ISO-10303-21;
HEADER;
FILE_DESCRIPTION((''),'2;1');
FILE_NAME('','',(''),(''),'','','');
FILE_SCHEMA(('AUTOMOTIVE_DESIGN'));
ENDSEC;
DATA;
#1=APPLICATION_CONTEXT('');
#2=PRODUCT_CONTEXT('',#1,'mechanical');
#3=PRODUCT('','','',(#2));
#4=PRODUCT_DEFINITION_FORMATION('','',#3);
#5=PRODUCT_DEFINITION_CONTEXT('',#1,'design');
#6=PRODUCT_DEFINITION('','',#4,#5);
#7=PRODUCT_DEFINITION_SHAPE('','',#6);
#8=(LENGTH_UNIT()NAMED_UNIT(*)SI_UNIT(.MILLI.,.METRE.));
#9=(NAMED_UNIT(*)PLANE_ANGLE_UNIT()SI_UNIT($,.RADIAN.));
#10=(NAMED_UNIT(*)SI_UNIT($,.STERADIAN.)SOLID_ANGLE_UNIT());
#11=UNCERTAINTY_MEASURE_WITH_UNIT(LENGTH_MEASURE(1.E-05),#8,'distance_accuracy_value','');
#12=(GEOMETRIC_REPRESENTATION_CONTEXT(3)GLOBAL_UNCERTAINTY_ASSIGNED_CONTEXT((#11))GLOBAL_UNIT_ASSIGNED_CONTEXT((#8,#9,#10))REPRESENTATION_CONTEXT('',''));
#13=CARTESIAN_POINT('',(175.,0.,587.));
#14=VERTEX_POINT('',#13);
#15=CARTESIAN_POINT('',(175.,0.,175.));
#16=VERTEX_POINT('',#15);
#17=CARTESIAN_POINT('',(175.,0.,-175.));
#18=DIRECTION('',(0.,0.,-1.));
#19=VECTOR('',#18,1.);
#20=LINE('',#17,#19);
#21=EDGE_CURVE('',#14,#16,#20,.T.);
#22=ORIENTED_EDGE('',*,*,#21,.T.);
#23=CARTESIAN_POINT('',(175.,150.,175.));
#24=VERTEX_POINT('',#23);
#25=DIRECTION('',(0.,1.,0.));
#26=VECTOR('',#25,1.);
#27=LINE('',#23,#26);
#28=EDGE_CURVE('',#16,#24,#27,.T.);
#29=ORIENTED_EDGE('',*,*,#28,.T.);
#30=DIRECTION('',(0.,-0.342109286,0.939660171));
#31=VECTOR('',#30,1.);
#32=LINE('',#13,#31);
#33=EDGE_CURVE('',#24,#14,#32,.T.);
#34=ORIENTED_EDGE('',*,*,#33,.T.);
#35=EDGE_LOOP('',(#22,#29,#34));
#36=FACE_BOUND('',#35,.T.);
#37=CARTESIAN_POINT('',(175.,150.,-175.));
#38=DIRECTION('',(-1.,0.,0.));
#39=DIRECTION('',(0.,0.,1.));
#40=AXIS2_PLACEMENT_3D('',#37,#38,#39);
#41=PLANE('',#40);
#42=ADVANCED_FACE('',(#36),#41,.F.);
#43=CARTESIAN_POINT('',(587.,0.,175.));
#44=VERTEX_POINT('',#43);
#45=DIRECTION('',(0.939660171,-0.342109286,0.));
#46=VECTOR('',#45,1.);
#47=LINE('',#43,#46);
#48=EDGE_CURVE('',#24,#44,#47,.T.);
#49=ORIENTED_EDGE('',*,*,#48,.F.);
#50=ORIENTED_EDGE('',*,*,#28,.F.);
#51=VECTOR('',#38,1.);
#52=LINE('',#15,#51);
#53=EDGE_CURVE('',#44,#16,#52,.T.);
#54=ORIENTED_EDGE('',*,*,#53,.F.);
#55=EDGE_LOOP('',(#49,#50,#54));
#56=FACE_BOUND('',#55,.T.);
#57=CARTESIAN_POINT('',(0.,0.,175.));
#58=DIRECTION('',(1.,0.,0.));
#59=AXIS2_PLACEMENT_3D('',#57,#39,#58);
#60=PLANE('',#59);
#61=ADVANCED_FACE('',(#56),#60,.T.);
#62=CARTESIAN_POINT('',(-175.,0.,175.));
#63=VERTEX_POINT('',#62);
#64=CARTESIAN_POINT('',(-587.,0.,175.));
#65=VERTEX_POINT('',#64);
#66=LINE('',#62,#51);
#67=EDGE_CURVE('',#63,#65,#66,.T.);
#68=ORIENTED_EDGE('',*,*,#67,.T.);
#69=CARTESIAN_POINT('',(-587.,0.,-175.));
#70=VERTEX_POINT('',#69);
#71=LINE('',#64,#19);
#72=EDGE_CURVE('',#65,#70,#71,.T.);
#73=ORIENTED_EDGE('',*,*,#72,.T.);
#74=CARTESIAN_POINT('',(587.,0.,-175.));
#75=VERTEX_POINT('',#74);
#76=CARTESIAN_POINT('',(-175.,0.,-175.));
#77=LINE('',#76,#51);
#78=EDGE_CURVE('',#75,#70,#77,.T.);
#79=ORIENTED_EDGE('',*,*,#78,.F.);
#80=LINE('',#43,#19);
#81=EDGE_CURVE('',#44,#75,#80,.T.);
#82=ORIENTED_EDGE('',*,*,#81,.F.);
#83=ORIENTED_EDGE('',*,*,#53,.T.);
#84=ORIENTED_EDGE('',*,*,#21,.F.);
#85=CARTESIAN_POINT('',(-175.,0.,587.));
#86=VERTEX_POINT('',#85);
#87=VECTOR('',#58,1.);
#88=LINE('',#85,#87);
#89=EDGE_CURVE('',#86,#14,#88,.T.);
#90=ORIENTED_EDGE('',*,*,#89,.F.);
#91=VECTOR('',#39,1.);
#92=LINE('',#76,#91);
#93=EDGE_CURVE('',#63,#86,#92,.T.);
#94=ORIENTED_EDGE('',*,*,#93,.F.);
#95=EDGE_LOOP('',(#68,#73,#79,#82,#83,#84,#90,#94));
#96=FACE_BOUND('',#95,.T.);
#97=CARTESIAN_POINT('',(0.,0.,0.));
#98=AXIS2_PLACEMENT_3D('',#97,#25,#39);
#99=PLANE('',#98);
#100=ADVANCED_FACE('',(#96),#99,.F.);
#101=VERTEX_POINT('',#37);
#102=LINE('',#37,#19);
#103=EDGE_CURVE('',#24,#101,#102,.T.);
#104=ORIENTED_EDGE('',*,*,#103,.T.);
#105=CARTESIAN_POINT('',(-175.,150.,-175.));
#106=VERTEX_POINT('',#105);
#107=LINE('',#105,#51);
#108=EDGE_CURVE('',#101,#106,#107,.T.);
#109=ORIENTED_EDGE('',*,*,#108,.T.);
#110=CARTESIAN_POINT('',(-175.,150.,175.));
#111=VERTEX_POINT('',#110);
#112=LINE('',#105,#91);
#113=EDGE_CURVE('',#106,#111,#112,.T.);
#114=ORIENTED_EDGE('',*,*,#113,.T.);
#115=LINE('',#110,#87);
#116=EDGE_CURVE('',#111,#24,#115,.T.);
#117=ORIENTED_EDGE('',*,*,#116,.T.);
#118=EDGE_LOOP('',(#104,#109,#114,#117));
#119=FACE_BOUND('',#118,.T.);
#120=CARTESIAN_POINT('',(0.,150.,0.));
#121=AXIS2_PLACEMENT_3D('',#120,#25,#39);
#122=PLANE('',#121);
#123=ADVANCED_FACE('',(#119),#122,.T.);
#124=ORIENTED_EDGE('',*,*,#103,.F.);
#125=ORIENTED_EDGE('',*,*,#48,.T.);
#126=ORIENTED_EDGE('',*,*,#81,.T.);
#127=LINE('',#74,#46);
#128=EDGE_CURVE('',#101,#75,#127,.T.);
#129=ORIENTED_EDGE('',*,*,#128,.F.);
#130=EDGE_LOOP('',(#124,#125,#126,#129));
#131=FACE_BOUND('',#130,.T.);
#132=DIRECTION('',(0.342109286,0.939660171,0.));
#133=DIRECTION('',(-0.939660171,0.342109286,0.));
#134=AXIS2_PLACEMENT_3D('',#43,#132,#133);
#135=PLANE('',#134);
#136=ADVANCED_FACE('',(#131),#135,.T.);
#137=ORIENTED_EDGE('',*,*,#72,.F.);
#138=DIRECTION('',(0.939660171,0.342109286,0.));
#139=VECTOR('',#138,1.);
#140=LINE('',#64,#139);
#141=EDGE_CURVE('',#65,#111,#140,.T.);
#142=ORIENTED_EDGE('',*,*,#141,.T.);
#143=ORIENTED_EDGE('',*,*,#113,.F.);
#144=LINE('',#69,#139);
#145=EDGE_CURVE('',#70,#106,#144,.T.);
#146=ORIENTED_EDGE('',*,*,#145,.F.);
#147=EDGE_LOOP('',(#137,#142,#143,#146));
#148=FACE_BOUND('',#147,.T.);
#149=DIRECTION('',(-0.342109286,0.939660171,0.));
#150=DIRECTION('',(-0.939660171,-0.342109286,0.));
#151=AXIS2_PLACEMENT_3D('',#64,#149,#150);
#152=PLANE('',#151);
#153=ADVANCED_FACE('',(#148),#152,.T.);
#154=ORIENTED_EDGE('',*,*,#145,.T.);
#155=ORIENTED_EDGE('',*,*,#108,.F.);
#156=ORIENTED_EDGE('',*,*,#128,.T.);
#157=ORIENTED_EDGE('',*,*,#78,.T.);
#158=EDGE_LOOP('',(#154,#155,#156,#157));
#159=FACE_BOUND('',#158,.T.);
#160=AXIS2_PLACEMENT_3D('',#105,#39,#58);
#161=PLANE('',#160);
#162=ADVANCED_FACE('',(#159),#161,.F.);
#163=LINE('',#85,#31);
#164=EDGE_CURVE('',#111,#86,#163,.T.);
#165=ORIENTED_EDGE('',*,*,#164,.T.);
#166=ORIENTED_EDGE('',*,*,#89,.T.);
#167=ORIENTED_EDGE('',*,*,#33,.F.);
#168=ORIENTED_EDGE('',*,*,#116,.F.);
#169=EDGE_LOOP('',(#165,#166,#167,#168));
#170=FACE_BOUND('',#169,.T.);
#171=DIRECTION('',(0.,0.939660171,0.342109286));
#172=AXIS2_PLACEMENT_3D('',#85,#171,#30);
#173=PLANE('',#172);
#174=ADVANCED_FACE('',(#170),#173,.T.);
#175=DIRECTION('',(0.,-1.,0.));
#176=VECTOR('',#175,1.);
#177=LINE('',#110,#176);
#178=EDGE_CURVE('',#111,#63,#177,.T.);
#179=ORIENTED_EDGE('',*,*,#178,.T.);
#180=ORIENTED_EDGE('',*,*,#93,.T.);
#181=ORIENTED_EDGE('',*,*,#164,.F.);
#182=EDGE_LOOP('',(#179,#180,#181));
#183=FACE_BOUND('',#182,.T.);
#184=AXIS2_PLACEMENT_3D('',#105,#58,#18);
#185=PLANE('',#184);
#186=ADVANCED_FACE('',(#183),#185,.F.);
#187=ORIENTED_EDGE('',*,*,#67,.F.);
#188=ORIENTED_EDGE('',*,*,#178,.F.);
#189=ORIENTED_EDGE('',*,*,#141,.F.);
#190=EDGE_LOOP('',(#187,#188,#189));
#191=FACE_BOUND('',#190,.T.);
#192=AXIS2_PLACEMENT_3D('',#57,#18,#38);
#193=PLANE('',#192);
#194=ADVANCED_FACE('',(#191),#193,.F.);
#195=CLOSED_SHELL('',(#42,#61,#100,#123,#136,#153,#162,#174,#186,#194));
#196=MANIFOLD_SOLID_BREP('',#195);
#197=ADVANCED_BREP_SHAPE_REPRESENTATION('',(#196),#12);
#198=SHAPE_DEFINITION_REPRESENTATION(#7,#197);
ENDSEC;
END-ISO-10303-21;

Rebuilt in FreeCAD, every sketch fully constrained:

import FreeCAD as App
import Part
import Sketcher
from FreeCAD import Vector


def add_polygon(sketch, points):
    """Adds a closed chain of lines whose ends are joined by coincident constraints."""
    first, n = sketch.GeometryCount, len(points)
    for a, b in zip(points, points[1:] + points[:1]):
        sketch.addGeometry(Part.LineSegment(App.Vector(*a, 0), App.Vector(*b, 0)), False)
    for i in range(n):
        sketch.addConstraint(Sketcher.Constraint("Coincident", first + i, 2, first + (i + 1) % n, 1))

doc = App.newDocument("Part")
params = doc.addObject("Spreadsheet::Sheet", "Params")
for row, (alias, value) in enumerate([
    ("sketch1_width", "350 mm"),
    ("pad1_length", "150 mm"),
    ("sketch2_width", "150 mm"),
    ("sketch2_height", "412 mm"),
    ("pad2_length", "350 mm"),
    ("sketch3_width", "412 mm"),
    ("sketch3_height", "150 mm"),
    ("pad3_length", "350 mm"),
], start=1):
    params.set(f"A{row}", alias)
    params.set(f"B{row}", "=" + value)
    params.setAlias(f"B{row}", alias)

body = doc.addObject("PartDesign::Body", "Body")

sketch1 = body.newObject("Sketcher::SketchObject", "Sketch")
sketch1.AttachmentSupport = (doc.getObject("XZ_Plane"), [""])
sketch1.MapMode = "FlatFace"
add_polygon(sketch1, [(-175, -175), (-175, 175), (175, 175), (175, -175)])
sketch1.addConstraint(Sketcher.Constraint("Vertical", 0))
sketch1.addConstraint(Sketcher.Constraint("Horizontal", 1))
sketch1.addConstraint(Sketcher.Constraint("Vertical", 2))
sketch1.addConstraint(Sketcher.Constraint("Horizontal", 3))
sketch1.addConstraint(Sketcher.Constraint("Symmetric", 0, 2, 2, 2, -1, 1))
sketch1.addConstraint(Sketcher.Constraint("Equal", 3, 0))
sketch1.addConstraint(Sketcher.Constraint("DistanceX", 1, 1, 1, 2, 350.0))
sketch1.setExpression("Constraints[10]", "Params.sketch1_width")
pad1 = body.newObject("PartDesign::Pad", "Pad")
pad1.Profile = sketch1
pad1.setExpression("Length", "Params.pad1_length")
pad1.Reversed = True

sketch2 = body.newObject("Sketcher::SketchObject", "Sketch001")
sketch2.AttachmentSupport = (doc.getObject("YZ_Plane"), [""])
sketch2.MapMode = "FlatFace"
sketch2.AttachmentOffset = App.Placement(Vector(0, 0, 175), App.Rotation())
add_polygon(sketch2, [(0, 175), (150, 175), (0, 587)])
sketch2.addConstraint(Sketcher.Constraint("Horizontal", 0))
sketch2.addConstraint(Sketcher.Constraint("Vertical", 2))
sketch2.addConstraint(Sketcher.Constraint("PointOnObject", 1, 2, -2))
sketch2.addConstraint(Sketcher.Constraint("DistanceX", 0, 1, 0, 2, 150.0))
sketch2.addConstraint(Sketcher.Constraint("DistanceY", 2, 2, 2, 1, 412.0))
sketch2.addConstraint(Sketcher.Constraint("DistanceY", -1, 1, 0, 2, 175.0))
sketch2.setExpression("Constraints[6]", "Params.sketch2_width")
sketch2.setExpression("Constraints[7]", "Params.sketch2_height")
pad2 = body.newObject("PartDesign::Pad", "Pad001")
pad2.Profile = sketch2
pad2.setExpression("Length", "Params.pad2_length")
pad2.Reversed = True

sketch3 = body.newObject("Sketcher::SketchObject", "Sketch002")
sketch3.AttachmentSupport = (doc.getObject("XY_Plane"), [""])
sketch3.MapMode = "FlatFace"
sketch3.AttachmentOffset = App.Placement(Vector(0, 0, -175), App.Rotation())
add_polygon(sketch3, [(-175, 150), (-175, 0), (-587, 0)])
add_polygon(sketch3, [(587, 0), (175, 0), (175, 150)])
sketch3.addConstraint(Sketcher.Constraint("Vertical", 0))
sketch3.addConstraint(Sketcher.Constraint("Horizontal", 1))
sketch3.addConstraint(Sketcher.Constraint("Horizontal", 3))
sketch3.addConstraint(Sketcher.Constraint("Vertical", 4))
sketch3.addConstraint(Sketcher.Constraint("Symmetric", 0, 2, 3, 2, -1, 1))
sketch3.addConstraint(Sketcher.Constraint("Symmetric", 1, 2, 5, 2, -2))
sketch3.addConstraint(Sketcher.Constraint("Horizontal", 2, 2, 4, 2))
sketch3.addConstraint(Sketcher.Constraint("DistanceX", 1, 2, 1, 1, 412.0))
sketch3.addConstraint(Sketcher.Constraint("DistanceY", 0, 2, 0, 1, 150.0))
sketch3.addConstraint(Sketcher.Constraint("DistanceX", 0, 2, -1, 1, 175.0))
sketch3.setExpression("Constraints[13]", "Params.sketch3_width")
sketch3.setExpression("Constraints[14]", "Params.sketch3_height")
pad3 = body.newObject("PartDesign::Pad", "Pad002")
pad3.Profile = sketch3
pad3.setExpression("Length", "Params.pad3_length")

doc.recompute()
